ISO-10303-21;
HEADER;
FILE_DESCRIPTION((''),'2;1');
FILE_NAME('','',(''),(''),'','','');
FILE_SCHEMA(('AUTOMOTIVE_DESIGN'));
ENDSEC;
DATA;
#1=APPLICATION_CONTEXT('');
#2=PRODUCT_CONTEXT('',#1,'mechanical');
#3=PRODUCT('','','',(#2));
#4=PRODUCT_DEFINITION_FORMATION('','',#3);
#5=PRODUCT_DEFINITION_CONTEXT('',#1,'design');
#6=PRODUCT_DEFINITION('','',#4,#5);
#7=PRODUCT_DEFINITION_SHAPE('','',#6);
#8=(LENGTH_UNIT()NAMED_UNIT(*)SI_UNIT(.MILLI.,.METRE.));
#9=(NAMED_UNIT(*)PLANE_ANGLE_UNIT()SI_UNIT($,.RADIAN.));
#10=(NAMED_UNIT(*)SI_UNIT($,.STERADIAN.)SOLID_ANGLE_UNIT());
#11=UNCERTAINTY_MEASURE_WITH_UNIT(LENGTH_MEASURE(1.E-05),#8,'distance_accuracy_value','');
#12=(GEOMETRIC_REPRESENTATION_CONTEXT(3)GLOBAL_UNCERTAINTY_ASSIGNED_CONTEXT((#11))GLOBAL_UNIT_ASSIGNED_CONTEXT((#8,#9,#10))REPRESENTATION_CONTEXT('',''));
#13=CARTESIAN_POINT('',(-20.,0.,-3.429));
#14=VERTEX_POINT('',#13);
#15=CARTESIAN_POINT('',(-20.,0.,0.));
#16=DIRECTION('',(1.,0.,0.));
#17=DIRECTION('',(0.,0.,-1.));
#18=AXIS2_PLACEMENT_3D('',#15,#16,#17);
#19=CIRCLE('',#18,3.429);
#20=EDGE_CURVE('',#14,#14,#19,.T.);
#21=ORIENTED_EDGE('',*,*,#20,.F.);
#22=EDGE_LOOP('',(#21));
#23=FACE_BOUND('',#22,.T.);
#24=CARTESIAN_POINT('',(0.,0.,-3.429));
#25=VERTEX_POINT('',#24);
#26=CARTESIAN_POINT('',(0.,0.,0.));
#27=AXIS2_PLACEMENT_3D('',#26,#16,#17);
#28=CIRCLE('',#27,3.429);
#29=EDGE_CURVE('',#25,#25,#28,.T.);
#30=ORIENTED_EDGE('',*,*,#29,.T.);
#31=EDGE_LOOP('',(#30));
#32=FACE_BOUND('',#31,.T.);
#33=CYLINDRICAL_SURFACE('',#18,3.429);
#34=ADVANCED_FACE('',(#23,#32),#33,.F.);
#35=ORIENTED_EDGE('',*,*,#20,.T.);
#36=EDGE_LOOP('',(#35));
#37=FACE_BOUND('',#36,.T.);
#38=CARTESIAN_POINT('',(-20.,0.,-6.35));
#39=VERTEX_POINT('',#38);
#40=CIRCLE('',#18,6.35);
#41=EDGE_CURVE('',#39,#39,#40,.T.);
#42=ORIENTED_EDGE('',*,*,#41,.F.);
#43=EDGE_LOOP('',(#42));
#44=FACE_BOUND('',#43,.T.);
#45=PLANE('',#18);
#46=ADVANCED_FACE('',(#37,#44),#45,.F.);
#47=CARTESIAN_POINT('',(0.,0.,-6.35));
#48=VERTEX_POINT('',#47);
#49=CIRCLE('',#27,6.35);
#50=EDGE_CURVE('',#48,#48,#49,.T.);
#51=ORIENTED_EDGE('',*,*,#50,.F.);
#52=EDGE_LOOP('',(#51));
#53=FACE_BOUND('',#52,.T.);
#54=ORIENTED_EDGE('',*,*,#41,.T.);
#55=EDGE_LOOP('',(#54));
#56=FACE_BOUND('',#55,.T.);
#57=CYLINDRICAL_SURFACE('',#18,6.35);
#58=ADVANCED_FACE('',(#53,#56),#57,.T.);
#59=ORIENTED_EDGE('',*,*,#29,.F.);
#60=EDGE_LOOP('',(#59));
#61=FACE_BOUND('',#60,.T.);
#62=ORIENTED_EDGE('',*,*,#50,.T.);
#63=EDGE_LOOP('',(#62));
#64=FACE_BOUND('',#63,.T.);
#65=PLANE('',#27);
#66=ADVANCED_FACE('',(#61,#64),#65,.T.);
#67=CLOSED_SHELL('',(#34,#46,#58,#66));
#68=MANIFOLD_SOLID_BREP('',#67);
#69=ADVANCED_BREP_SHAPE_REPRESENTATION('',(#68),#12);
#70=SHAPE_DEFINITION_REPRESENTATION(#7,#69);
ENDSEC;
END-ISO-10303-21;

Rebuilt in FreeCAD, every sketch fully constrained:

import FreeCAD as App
import Part
import Sketcher
from FreeCAD import Vector
Q = App.Units.Quantity

doc = App.newDocument("Part")
body = doc.addObject("PartDesign::Body", "Body")

sketch1 = body.newObject("Sketcher::SketchObject", "Sketch")
sketch1.AttachmentSupport = (doc.getObject("YZ_Plane"), [""])
sketch1.MapMode = "FlatFace"
sketch1.addGeometry([
    Part.Circle(Vector(0, 0, 0), Vector(0, 0, 1), 6.3),
    Part.Circle(Vector(0, 0, 0), Vector(0, 0, 1), 3.4),
], False)
sketch1.addConstraint([
    Sketcher.Constraint("Coincident", 0, 3, -1, 1),
    Sketcher.Constraint("Coincident", 1, 3, -1, 1),
    Sketcher.Constraint("Diameter", 0, Q("0.5 in")),
    Sketcher.Constraint("Diameter", 1, Q("0.27 in")),
])
pad1 = body.newObject("PartDesign::Pad", "Pad")
pad1.Profile = sketch1
pad1.Length = 20
pad1.Reversed = True

doc.recompute()
